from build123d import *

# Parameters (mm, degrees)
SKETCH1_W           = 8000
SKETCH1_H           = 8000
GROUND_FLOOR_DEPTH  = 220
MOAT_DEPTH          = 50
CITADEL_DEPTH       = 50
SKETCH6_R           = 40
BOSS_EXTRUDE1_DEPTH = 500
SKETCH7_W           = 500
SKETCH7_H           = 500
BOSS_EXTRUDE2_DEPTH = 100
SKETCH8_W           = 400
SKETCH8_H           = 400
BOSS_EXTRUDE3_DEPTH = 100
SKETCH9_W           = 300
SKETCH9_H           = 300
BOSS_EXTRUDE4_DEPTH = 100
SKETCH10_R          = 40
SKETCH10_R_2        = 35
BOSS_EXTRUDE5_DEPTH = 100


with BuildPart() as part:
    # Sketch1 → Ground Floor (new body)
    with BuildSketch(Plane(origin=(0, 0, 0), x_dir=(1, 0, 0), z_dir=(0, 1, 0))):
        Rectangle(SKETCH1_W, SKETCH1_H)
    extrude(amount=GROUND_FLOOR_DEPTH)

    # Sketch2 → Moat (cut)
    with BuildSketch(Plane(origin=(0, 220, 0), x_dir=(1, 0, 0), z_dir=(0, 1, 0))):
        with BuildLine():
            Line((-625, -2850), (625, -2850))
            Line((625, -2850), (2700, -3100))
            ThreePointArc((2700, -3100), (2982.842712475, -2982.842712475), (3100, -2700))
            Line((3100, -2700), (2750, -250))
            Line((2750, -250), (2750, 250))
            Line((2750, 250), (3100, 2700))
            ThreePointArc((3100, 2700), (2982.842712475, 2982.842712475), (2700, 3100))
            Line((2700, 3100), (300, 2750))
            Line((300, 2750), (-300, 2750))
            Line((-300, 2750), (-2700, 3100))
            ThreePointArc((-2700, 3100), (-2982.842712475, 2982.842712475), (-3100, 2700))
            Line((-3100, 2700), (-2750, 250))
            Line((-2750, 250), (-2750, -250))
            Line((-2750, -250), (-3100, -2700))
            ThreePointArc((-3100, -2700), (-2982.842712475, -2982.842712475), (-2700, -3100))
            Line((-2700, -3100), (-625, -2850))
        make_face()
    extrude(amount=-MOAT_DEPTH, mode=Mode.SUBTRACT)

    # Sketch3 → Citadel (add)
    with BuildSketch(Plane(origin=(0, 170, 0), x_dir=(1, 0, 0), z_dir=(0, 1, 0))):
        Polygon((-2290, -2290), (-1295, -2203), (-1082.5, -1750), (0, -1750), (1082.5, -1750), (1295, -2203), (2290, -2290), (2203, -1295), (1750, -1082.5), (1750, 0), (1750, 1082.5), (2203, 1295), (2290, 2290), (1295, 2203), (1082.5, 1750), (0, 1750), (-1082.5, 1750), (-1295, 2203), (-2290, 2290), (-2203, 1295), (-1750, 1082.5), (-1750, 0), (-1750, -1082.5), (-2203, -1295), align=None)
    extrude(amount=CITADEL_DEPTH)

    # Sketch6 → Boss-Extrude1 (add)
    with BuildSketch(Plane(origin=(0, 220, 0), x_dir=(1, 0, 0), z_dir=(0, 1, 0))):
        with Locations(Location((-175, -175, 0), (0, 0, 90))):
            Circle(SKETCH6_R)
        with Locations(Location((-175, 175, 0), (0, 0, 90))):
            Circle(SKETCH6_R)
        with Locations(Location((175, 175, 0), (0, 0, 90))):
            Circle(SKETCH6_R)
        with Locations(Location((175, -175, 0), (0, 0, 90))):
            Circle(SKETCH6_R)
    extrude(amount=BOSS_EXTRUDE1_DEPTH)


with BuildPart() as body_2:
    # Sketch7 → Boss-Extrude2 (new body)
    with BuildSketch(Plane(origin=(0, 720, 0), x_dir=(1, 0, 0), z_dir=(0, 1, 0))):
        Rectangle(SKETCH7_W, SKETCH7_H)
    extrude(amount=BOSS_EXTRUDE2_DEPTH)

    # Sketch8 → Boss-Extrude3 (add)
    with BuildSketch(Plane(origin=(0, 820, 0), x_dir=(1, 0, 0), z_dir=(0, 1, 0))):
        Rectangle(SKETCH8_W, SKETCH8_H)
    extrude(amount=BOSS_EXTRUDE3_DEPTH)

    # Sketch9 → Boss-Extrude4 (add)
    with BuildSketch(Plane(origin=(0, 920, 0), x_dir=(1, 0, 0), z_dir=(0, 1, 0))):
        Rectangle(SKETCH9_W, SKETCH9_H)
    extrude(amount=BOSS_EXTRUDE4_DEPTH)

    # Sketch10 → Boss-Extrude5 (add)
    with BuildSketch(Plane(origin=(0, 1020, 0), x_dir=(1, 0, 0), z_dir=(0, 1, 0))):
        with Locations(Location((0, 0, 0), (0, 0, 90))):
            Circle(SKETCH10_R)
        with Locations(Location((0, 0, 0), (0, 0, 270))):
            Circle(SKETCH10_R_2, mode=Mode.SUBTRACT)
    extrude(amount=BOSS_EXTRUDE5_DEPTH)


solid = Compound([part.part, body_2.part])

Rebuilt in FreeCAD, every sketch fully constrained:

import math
import FreeCAD as App
import Part
import Sketcher


def add_polygon(sketch, points):
    """Adds a closed chain of lines whose ends are joined by coincident constraints."""
    first, n = sketch.GeometryCount, len(points)
    for a, b in zip(points, points[1:] + points[:1]):
        sketch.addGeometry(Part.LineSegment(App.Vector(*a, 0), App.Vector(*b, 0)), False)
    for i in range(n):
        sketch.addConstraint(Sketcher.Constraint("Coincident", first + i, 2, first + (i + 1) % n, 1))

doc = App.newDocument("Part")
body = doc.addObject("PartDesign::Body", "Body")

# Sketch on XZ plane
sketch1 = body.newObject("Sketcher::SketchObject", "Sketch")
sketch1.AttachmentSupport = (doc.getObject("XZ_Plane"), [""])
sketch1.MapMode = "FlatFace"
add_polygon(sketch1, [(-4000, -4000), (-4000, 4000), (4000, 4000), (4000, -4000)])  # lines 0-3
sketch1.addConstraint(Sketcher.Constraint("Vertical", 0))
sketch1.addConstraint(Sketcher.Constraint("Horizontal", 1))
sketch1.addConstraint(Sketcher.Constraint("Vertical", 2))
sketch1.addConstraint(Sketcher.Constraint("Horizontal", 3))
sketch1.addConstraint(Sketcher.Constraint("Symmetric", 0, 2, 2, 2, -1, 1))
sketch1.addConstraint(Sketcher.Constraint("Equal", 3, 0))
sketch1.addConstraint(Sketcher.Constraint("DistanceX", 1, 1, 1, 2, 8000.0))
pad1 = body.newObject("PartDesign::Pad", "Pad")
pad1.Profile = sketch1
pad1.Length = 220
pad1.Reversed = True

# Sketch on XZ plane
sketch2 = body.newObject("Sketcher::SketchObject", "Sketch001")
sketch2.AttachmentSupport = (doc.getObject("XZ_Plane"), [""])
sketch2.MapMode = "FlatFace"
sketch2.AttachmentOffset = App.Placement(App.Vector(0, 0, -220), App.Rotation())
sketch2.addGeometry(Part.LineSegment(App.Vector(-625, 2850, 0), App.Vector(625, 2850, 0)), False)
sketch2.addGeometry(Part.LineSegment(App.Vector(625, 2850, 0), App.Vector(2700, 3100, 0)), False)
sketch2.addGeometry(Part.ArcOfCircle(Part.Circle(App.Vector(2700, 2700, 0), App.Vector(0, 0, 1), 400), math.radians(0), math.radians(90)), False)
sketch2.addGeometry(Part.LineSegment(App.Vector(3100, 2700, 0), App.Vector(2750, 250, 0)), False)
sketch2.addGeometry(Part.LineSegment(App.Vector(2750, 250, 0), App.Vector(2750, -250, 0)), False)
sketch2.addGeometry(Part.LineSegment(App.Vector(2750, -250, 0), App.Vector(3100, -2700, 0)), False)
sketch2.addGeometry(Part.ArcOfCircle(Part.Circle(App.Vector(2700, -2700, 0), App.Vector(0, 0, 1), 400), math.radians(-90), math.radians(0)), False)
sketch2.addGeometry(Part.LineSegment(App.Vector(2700, -3100, 0), App.Vector(300, -2750, 0)), False)
sketch2.addGeometry(Part.LineSegment(App.Vector(300, -2750, 0), App.Vector(-300, -2750, 0)), False)
sketch2.addGeometry(Part.LineSegment(App.Vector(-300, -2750, 0), App.Vector(-2700, -3100, 0)), False)
sketch2.addGeometry(Part.ArcOfCircle(Part.Circle(App.Vector(-2700, -2700, 0), App.Vector(0, 0, 1), 400), math.radians(180), math.radians(270)), False)
sketch2.addGeometry(Part.LineSegment(App.Vector(-3100, -2700, 0), App.Vector(-2750, -250, 0)), False)
sketch2.addGeometry(Part.LineSegment(App.Vector(-2750, -250, 0), App.Vector(-2750, 250, 0)), False)
sketch2.addGeometry(Part.LineSegment(App.Vector(-2750, 250, 0), App.Vector(-3100, 2700, 0)), False)
sketch2.addGeometry(Part.ArcOfCircle(Part.Circle(App.Vector(-2700, 2700, 0), App.Vector(0, 0, 1), 400), math.radians(90), math.radians(180)), False)
sketch2.addGeometry(Part.LineSegment(App.Vector(-2700, 3100, 0), App.Vector(-625, 2850, 0)), False)
sketch2.addConstraint(Sketcher.Constraint("Coincident", 0, 2, 1, 1))
sketch2.addConstraint(Sketcher.Constraint("Coincident", 1, 2, 2, 2))
sketch2.addConstraint(Sketcher.Constraint("Coincident", 2, 1, 3, 1))
sketch2.addConstraint(Sketcher.Constraint("Coincident", 3, 2, 4, 1))
sketch2.addConstraint(Sketcher.Constraint("Coincident", 4, 2, 5, 1))
sketch2.addConstraint(Sketcher.Constraint("Coincident", 5, 2, 6, 2))
sketch2.addConstraint(Sketcher.Constraint("Coincident", 6, 1, 7, 1))
sketch2.addConstraint(Sketcher.Constraint("Coincident", 7, 2, 8, 1))
sketch2.addConstraint(Sketcher.Constraint("Coincident", 8, 2, 9, 1))
sketch2.addConstraint(Sketcher.Constraint("Coincident", 9, 2, 10, 2))
sketch2.addConstraint(Sketcher.Constraint("Coincident", 10, 1, 11, 1))
sketch2.addConstraint(Sketcher.Constraint("Coincident", 11, 2, 12, 1))
sketch2.addConstraint(Sketcher.Constraint("Coincident", 12, 2, 13, 1))
sketch2.addConstraint(Sketcher.Constraint("Coincident", 13, 2, 14, 2))
sketch2.addConstraint(Sketcher.Constraint("Coincident", 14, 1, 15, 1))
sketch2.addConstraint(Sketcher.Constraint("Coincident", 15, 2, 0, 1))
sketch2.addConstraint(Sketcher.Constraint("Horizontal", 0))
sketch2.addConstraint(Sketcher.Constraint("Vertical", 4))
sketch2.addConstraint(Sketcher.Constraint("Horizontal", 8))
sketch2.addConstraint(Sketcher.Constraint("Vertical", 12))
sketch2.addConstraint(Sketcher.Constraint("Equal", 2, 6))
sketch2.addConstraint(Sketcher.Constraint("Equal", 6, 10))
sketch2.addConstraint(Sketcher.Constraint("Equal", 10, 14))
sketch2.addConstraint(Sketcher.Constraint("Symmetric", 2, 3, 10, 3, -1, 1))
sketch2.addConstraint(Sketcher.Constraint("Symmetric", 6, 3, 14, 3, -1, 1))
sketch2.addConstraint(Sketcher.Constraint("Symmetric", 3, 2, 11, 2, -1, 1))
sketch2.addConstraint(Sketcher.Constraint("Symmetric", 6, 3, 10, 3, -2))
sketch2.addConstraint(Sketcher.Constraint("Parallel", 3, 11))
sketch2.addConstraint(Sketcher.Constraint("Parallel", 5, 13))
sketch2.addConstraint(Sketcher.Constraint("Horizontal", 14, 3, 2, 1))
sketch2.addConstraint(Sketcher.Constraint("Horizontal", 10, 3, 5, 2))
sketch2.addConstraint(Sketcher.Constraint("Horizontal", 4, 2, 11, 2))
sketch2.addConstraint(Sketcher.Constraint("Horizontal", 3, 2, 12, 2))
sketch2.addConstraint(Sketcher.Constraint("Vertical", 6, 3, 1, 2))
sketch2.addConstraint(Sketcher.Constraint("Vertical", 1, 2, 6, 1))
sketch2.addConstraint(Sketcher.Constraint("Vertical", 14, 3, 9, 2))
sketch2.addConstraint(Sketcher.Constraint("Vertical", 9, 2, 14, 1))
sketch2.addConstraint(Sketcher.Constraint("Equal", 7, 9))
sketch2.addConstraint(Sketcher.Constraint("Equal", 1, 15))
sketch2.addConstraint(Sketcher.Constraint("Radius", 2, 400.0))
sketch2.addConstraint(Sketcher.Constraint("DistanceX", 0, 1, 0, 2, 1250.0))
sketch2.addConstraint(Sketcher.Constraint("DistanceX", 8, 2, 8, 1, 600.0))
sketch2.addConstraint(Sketcher.Constraint("DistanceY", 4, 2, 4, 1, 500.0))
sketch2.addConstraint(Sketcher.Constraint("DistanceX", -1, 1, 2, 3, 2700.0))
sketch2.addConstraint(Sketcher.Constraint("DistanceY", -1, 1, 2, 3, 2700.0))
sketch2.addConstraint(Sketcher.Constraint("DistanceY", -1, 1, 0, 2, 2850.0))
sketch2.addConstraint(Sketcher.Constraint("DistanceX", -1, 1, 3, 2, 2750.0))
sketch2.addConstraint(Sketcher.Constraint("DistanceY", 7, 2, -1, 1, 2750.0))
pocket1 = body.newObject("PartDesign::Pocket", "Pocket")
pocket1.Profile = sketch2
pocket1.Length = 50
pocket1.Reversed = True

# Sketch on XZ plane
sketch3 = body.newObject("Sketcher::SketchObject", "Sketch002")
sketch3.AttachmentSupport = (doc.getObject("XZ_Plane"), [""])
sketch3.MapMode = "FlatFace"
sketch3.AttachmentOffset = App.Placement(App.Vector(0, 0, -170), App.Rotation())
add_polygon(sketch3, [(-2290, 2290), (-1295, 2203), (-1082.5, 1750), (1082.5, 1750), (1295, 2203), (2290, 2290), (2203, 1295), (1750, 1082.5), (1750, -1082.5), (2203, -1295), (2290, -2290), (1295, -2203), (1082.5, -1750), (-1082.5, -1750), (-1295, -2203), (-2290, -2290), (-2203, -1295), (-1750, -1082.5), (-1750, 1082.5), (-2203, 1295)])  # lines 0-19
sketch3.addConstraint(Sketcher.Constraint("Horizontal", 2))
sketch3.addConstraint(Sketcher.Constraint("Vertical", 7))
sketch3.addConstraint(Sketcher.Constraint("Horizontal", 12))
sketch3.addConstraint(Sketcher.Constraint("Vertical", 17))
sketch3.addConstraint(Sketcher.Constraint("Symmetric", 0, 2, 10, 2, -1, 1))
sketch3.addConstraint(Sketcher.Constraint("Symmetric", 1, 2, 11, 2, -1, 1))
sketch3.addConstraint(Sketcher.Constraint("Symmetric", 3, 2, 13, 2, -1, 1))
sketch3.addConstraint(Sketcher.Constraint("Symmetric", 4, 2, 14, 2, -1, 1))
sketch3.addConstraint(Sketcher.Constraint("Symmetric", 5, 2, 15, 2, -1, 1))
sketch3.addConstraint(Sketcher.Constraint("Symmetric", 6, 2, 16, 2, -1, 1))
sketch3.addConstraint(Sketcher.Constraint("Symmetric", 8, 2, 18, 2, -1, 1))
sketch3.addConstraint(Sketcher.Constraint("Symmetric", 9, 2, 19, 2, -1, 1))
sketch3.addConstraint(Sketcher.Constraint("Symmetric", 0, 2, 3, 2, -2))
sketch3.addConstraint(Sketcher.Constraint("Symmetric", 9, 2, 14, 2, -2))
sketch3.addConstraint(Sketcher.Constraint("Symmetric", 8, 2, 15, 2, -2))
sketch3.addConstraint(Sketcher.Constraint("Perpendicular", 0, 5))
sketch3.addConstraint(Sketcher.Constraint("Perpendicular", 1, 6))
sketch3.addConstraint(Sketcher.Constraint("Perpendicular", 3, 8))
sketch3.addConstraint(Sketcher.Constraint("Perpendicular", 8, 13))
sketch3.addConstraint(Sketcher.Constraint("Perpendicular", 13, 18))
sketch3.addConstraint(Sketcher.Constraint("Horizontal", 7, 2, 16, 2))
sketch3.addConstraint(Sketcher.Constraint("Equal", 12, 7))
sketch3.addConstraint(Sketcher.Constraint("Equal", 4, 5))
sketch3.addConstraint(Sketcher.Constraint("Equal", 3, 6))
sketch3.addConstraint(Sketcher.Constraint("DistanceX", 2, 1, 2, 2, 2165.0))
sketch3.addConstraint(Sketcher.Constraint("DistanceX", 0, 2, -1, 1, 1295.0))
sketch3.addConstraint(Sketcher.Constraint("DistanceY", -1, 1, 0, 2, 2203.0))
sketch3.addConstraint(Sketcher.Constraint("DistanceY", -1, 1, 1, 2, 1750.0))
sketch3.addConstraint(Sketcher.Constraint("DistanceX", -1, 1, 4, 2, 2290.0))
pad2 = body.newObject("PartDesign::Pad", "Pad001")
pad2.Profile = sketch3
pad2.Length = 50
pad2.Reversed = True

# Sketch on XZ plane
sketch4 = body.newObject("Sketcher::SketchObject", "Sketch003")
sketch4.AttachmentSupport = (doc.getObject("XZ_Plane"), [""])
sketch4.MapMode = "FlatFace"
sketch4.AttachmentOffset = App.Placement(App.Vector(0, 0, -220), App.Rotation())
sketch4.addGeometry(Part.Circle(App.Vector(-175, 175, 0), App.Vector(0, 0, 1), 40), False)
sketch4.addGeometry(Part.Circle(App.Vector(-175, -175, 0), App.Vector(0, 0, 1), 40), False)
sketch4.addGeometry(Part.Circle(App.Vector(175, -175, 0), App.Vector(0, 0, 1), 40), False)
sketch4.addGeometry(Part.Circle(App.Vector(175, 175, 0), App.Vector(0, 0, 1), 40), False)
sketch4.addConstraint(Sketcher.Constraint("Equal", 0, 1))
sketch4.addConstraint(Sketcher.Constraint("Equal", 1, 2))
sketch4.addConstraint(Sketcher.Constraint("Equal", 2, 3))
sketch4.addConstraint(Sketcher.Constraint("Symmetric", 0, 3, 2, 3, -1, 1))
sketch4.addConstraint(Sketcher.Constraint("Symmetric", 1, 3, 3, 3, -1, 1))
sketch4.addConstraint(Sketcher.Constraint("Symmetric", 1, 3, 2, 3, -2))
sketch4.addConstraint(Sketcher.Constraint("Diameter", 0, 80.0))
sketch4.addConstraint(Sketcher.Constraint("DistanceX", 0, 3, -1, 1, 175.0))
sketch4.addConstraint(Sketcher.Constraint("DistanceY", -1, 1, 0, 3, 175.0))
pad3 = body.newObject("PartDesign::Pad", "Pad002")
pad3.Profile = sketch4
pad3.Length = 500
pad3.Reversed = True
body2 = doc.addObject("PartDesign::Body", "Body001")

# Sketch on XZ plane
sketch5 = body2.newObject("Sketcher::SketchObject", "Sketch004")
sketch5.AttachmentSupport = (doc.getObject("XZ_Plane001"), [""])
sketch5.MapMode = "FlatFace"
sketch5.AttachmentOffset = App.Placement(App.Vector(0, 0, -720), App.Rotation())
add_polygon(sketch5, [(-250, -250), (-250, 250), (250, 250), (250, -250)])  # lines 0-3
sketch5.addConstraint(Sketcher.Constraint("Vertical", 0))
sketch5.addConstraint(Sketcher.Constraint("Horizontal", 1))
sketch5.addConstraint(Sketcher.Constraint("Vertical", 2))
sketch5.addConstraint(Sketcher.Constraint("Horizontal", 3))
sketch5.addConstraint(Sketcher.Constraint("Symmetric", 0, 2, 2, 2, -1, 1))
sketch5.addConstraint(Sketcher.Constraint("Equal", 3, 0))
sketch5.addConstraint(Sketcher.Constraint("DistanceX", 1, 1, 1, 2, 500.0))
pad4 = body2.newObject("PartDesign::Pad", "Pad003")
pad4.Profile = sketch5
pad4.Length = 100
pad4.Reversed = True

# Sketch on XZ plane
sketch6 = body2.newObject("Sketcher::SketchObject", "Sketch005")
sketch6.AttachmentSupport = (doc.getObject("XZ_Plane001"), [""])
sketch6.MapMode = "FlatFace"
sketch6.AttachmentOffset = App.Placement(App.Vector(0, 0, -820), App.Rotation())
add_polygon(sketch6, [(-200, -200), (-200, 200), (200, 200), (200, -200)])  # lines 0-3
sketch6.addConstraint(Sketcher.Constraint("Vertical", 0))
sketch6.addConstraint(Sketcher.Constraint("Horizontal", 1))
sketch6.addConstraint(Sketcher.Constraint("Vertical", 2))
sketch6.addConstraint(Sketcher.Constraint("Horizontal", 3))
sketch6.addConstraint(Sketcher.Constraint("Symmetric", 0, 2, 2, 2, -1, 1))
sketch6.addConstraint(Sketcher.Constraint("Equal", 3, 0))
sketch6.addConstraint(Sketcher.Constraint("DistanceX", 1, 1, 1, 2, 400.0))
pad5 = body2.newObject("PartDesign::Pad", "Pad004")
pad5.Profile = sketch6
pad5.Length = 100
pad5.Reversed = True

# Sketch on XZ plane
sketch7 = body2.newObject("Sketcher::SketchObject", "Sketch006")
sketch7.AttachmentSupport = (doc.getObject("XZ_Plane001"), [""])
sketch7.MapMode = "FlatFace"
sketch7.AttachmentOffset = App.Placement(App.Vector(0, 0, -920), App.Rotation())
add_polygon(sketch7, [(-150, -150), (-150, 150), (150, 150), (150, -150)])  # lines 0-3
sketch7.addConstraint(Sketcher.Constraint("Vertical", 0))
sketch7.addConstraint(Sketcher.Constraint("Horizontal", 1))
sketch7.addConstraint(Sketcher.Constraint("Vertical", 2))
sketch7.addConstraint(Sketcher.Constraint("Horizontal", 3))
sketch7.addConstraint(Sketcher.Constraint("Symmetric", 0, 2, 2, 2, -1, 1))
sketch7.addConstraint(Sketcher.Constraint("Equal", 3, 0))
sketch7.addConstraint(Sketcher.Constraint("DistanceX", 1, 1, 1, 2, 300.0))
pad6 = body2.newObject("PartDesign::Pad", "Pad005")
pad6.Profile = sketch7
pad6.Length = 100
pad6.Reversed = True

# Sketch on XZ plane
sketch8 = body2.newObject("Sketcher::SketchObject", "Sketch007")
sketch8.AttachmentSupport = (doc.getObject("XZ_Plane001"), [""])
sketch8.MapMode = "FlatFace"
sketch8.AttachmentOffset = App.Placement(App.Vector(0, 0, -1020), App.Rotation())
sketch8.addGeometry(Part.Circle(App.Vector(0, 0, 0), App.Vector(0, 0, 1), 40), False)
sketch8.addGeometry(Part.Circle(App.Vector(0, 0, 0), App.Vector(0, 0, 1), 35), False)
sketch8.addConstraint(Sketcher.Constraint("Coincident", 0, 3, -1, 1))
sketch8.addConstraint(Sketcher.Constraint("Coincident", 1, 3, -1, 1))
sketch8.addConstraint(Sketcher.Constraint("Diameter", 0, 80.0))
sketch8.addConstraint(Sketcher.Constraint("Diameter", 1, 70.0))
pad7 = body2.newObject("PartDesign::Pad", "Pad006")
pad7.Profile = sketch8
pad7.Length = 100
pad7.Reversed = True

doc.recompute()
